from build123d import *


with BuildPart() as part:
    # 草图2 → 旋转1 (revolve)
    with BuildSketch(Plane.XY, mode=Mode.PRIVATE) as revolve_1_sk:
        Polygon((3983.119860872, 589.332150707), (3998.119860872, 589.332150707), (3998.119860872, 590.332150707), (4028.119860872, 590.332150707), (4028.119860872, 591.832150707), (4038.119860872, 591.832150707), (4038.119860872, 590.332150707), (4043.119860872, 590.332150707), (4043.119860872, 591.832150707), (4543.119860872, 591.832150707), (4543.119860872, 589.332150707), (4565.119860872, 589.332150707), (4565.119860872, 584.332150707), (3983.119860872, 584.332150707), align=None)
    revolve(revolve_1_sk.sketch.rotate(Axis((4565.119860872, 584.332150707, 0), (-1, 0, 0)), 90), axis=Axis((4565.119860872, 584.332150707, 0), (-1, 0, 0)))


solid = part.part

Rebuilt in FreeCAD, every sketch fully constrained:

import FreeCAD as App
import Part
import Sketcher
Q = App.Units.Quantity

doc = App.newDocument("Part")
body = doc.addObject("PartDesign::Body", "Body")

# Sketch on XY plane
sketch1 = body.newObject("Sketcher::SketchObject", "Sketch")
sketch1.AttachmentSupport = (doc.getObject("XY_Plane"), [""])
sketch1.MapMode = "FlatFace"
sketch1.addGeometry([
    Part.LineSegment(App.Vector(3998.1, 589.3, 0), App.Vector(3983.1, 589.3, 0)),  # 0
    Part.LineSegment(App.Vector(3983.1, 589.3, 0), App.Vector(3983.1, 584.3, 0)),  # 1
    Part.LineSegment(App.Vector(3983.1, 584.3, 0), App.Vector(4565.1, 584.3, 0)),  # 2
    Part.LineSegment(App.Vector(4565.1, 584.3, 0), App.Vector(4565.1, 589.3, 0)),  # 3
    Part.LineSegment(App.Vector(4565.1, 589.3, 0), App.Vector(4543.1, 589.3, 0)),  # 4
    Part.LineSegment(App.Vector(4543.1, 589.3, 0), App.Vector(4543.1, 591.8, 0)),  # 5
    Part.LineSegment(App.Vector(4543.1, 591.8, 0), App.Vector(4043.1, 591.8, 0)),  # 6
    Part.LineSegment(App.Vector(4043.1, 591.8, 0), App.Vector(4043.1, 590.3, 0)),  # 7
    Part.LineSegment(App.Vector(4043.1, 590.3, 0), App.Vector(4038.1, 590.3, 0)),  # 8
    Part.LineSegment(App.Vector(4038.1, 590.3, 0), App.Vector(4038.1, 591.8, 0)),  # 9
    Part.LineSegment(App.Vector(4038.1, 591.8, 0), App.Vector(4028.1, 591.8, 0)),  # 10
    Part.LineSegment(App.Vector(4028.1, 591.8, 0), App.Vector(4028.1, 590.3, 0)),  # 11
    Part.LineSegment(App.Vector(4028.1, 590.3, 0), App.Vector(3998.1, 590.3, 0)),  # 12
    Part.LineSegment(App.Vector(3998.1, 590.3, 0), App.Vector(3998.1, 589.3, 0)),  # 13
], False)
sketch1.addGeometry(Part.LineSegment(App.Vector(4565.1, 584.3, 0), App.Vector(3983.1, 584.3, 0)), True)  # axis
sketch1.addConstraint([
    Sketcher.Constraint("Coincident", 0, 2, 1, 1),
    Sketcher.Constraint("Coincident", 1, 2, 2, 1),
    Sketcher.Constraint("Coincident", 2, 2, 3, 1),
    Sketcher.Constraint("Coincident", 3, 2, 4, 1),
    Sketcher.Constraint("Coincident", 4, 2, 5, 1),
    Sketcher.Constraint("Coincident", 5, 2, 6, 1),
    Sketcher.Constraint("Coincident", 6, 2, 7, 1),
    Sketcher.Constraint("Coincident", 7, 2, 8, 1),
    Sketcher.Constraint("Coincident", 8, 2, 9, 1),
    Sketcher.Constraint("Coincident", 9, 2, 10, 1),
    Sketcher.Constraint("Coincident", 10, 2, 11, 1),
    Sketcher.Constraint("Coincident", 11, 2, 12, 1),
    Sketcher.Constraint("Coincident", 12, 2, 13, 1),
    Sketcher.Constraint("Coincident", 13, 2, 0, 1),
    Sketcher.Constraint("Horizontal", 0),
    Sketcher.Constraint("Vertical", 1),
    Sketcher.Constraint("Horizontal", 2),
    Sketcher.Constraint("Vertical", 3),
    Sketcher.Constraint("Horizontal", 4),
    Sketcher.Constraint("Vertical", 5),
    Sketcher.Constraint("Horizontal", 6),
    Sketcher.Constraint("Vertical", 7),
    Sketcher.Constraint("Horizontal", 8),
    Sketcher.Constraint("Vertical", 9),
    Sketcher.Constraint("Horizontal", 10),
    Sketcher.Constraint("Vertical", 11),
    Sketcher.Constraint("Horizontal", 12),
    Sketcher.Constraint("Vertical", 13),
    Sketcher.Constraint("Horizontal", 14),
    Sketcher.Constraint("Coincident", 14, 1, 2, 2),
    Sketcher.Constraint("Horizontal", 0, 2, 3, 2),
    Sketcher.Constraint("Horizontal", 6, 2, 9, 2),
    Sketcher.Constraint("Horizontal", 8, 2, 11, 2),
    Sketcher.Constraint("Vertical", 0, 2, 14, 2),
    Sketcher.Constraint("Equal", 8, 1),
    Sketcher.Constraint("DistanceX", 0, 2, 0, 1, Q("15 mm")),
    Sketcher.Constraint("DistanceX", 2, 1, 2, 2, Q("582 mm")),
    Sketcher.Constraint("DistanceX", 4, 2, 4, 1, Q("22 mm")),
    Sketcher.Constraint("DistanceX", 6, 2, 6, 1, Q("500 mm")),
    Sketcher.Constraint("DistanceX", 8, 2, 8, 1, Q("5 mm")),
    Sketcher.Constraint("DistanceX", 10, 2, 10, 1, Q("10 mm")),
    Sketcher.Constraint("DistanceY", 13, 2, 13, 1, Q("1 mm")),
    Sketcher.Constraint("DistanceY", 5, 1, 5, 2, Q("2.5 mm")),
    Sketcher.Constraint("DistanceX", -1, 1, 0, 2, Q("3983.119861 mm")),
    Sketcher.Constraint("DistanceY", -1, 1, 0, 2, Q("589.332151 mm")),
])
revolution = body.newObject("PartDesign::Revolution", "Revolution")
revolution.Profile = sketch1
revolution.ReferenceAxis = (sketch1, ["Axis0"])
revolution.Angle = 360

doc.recompute()
